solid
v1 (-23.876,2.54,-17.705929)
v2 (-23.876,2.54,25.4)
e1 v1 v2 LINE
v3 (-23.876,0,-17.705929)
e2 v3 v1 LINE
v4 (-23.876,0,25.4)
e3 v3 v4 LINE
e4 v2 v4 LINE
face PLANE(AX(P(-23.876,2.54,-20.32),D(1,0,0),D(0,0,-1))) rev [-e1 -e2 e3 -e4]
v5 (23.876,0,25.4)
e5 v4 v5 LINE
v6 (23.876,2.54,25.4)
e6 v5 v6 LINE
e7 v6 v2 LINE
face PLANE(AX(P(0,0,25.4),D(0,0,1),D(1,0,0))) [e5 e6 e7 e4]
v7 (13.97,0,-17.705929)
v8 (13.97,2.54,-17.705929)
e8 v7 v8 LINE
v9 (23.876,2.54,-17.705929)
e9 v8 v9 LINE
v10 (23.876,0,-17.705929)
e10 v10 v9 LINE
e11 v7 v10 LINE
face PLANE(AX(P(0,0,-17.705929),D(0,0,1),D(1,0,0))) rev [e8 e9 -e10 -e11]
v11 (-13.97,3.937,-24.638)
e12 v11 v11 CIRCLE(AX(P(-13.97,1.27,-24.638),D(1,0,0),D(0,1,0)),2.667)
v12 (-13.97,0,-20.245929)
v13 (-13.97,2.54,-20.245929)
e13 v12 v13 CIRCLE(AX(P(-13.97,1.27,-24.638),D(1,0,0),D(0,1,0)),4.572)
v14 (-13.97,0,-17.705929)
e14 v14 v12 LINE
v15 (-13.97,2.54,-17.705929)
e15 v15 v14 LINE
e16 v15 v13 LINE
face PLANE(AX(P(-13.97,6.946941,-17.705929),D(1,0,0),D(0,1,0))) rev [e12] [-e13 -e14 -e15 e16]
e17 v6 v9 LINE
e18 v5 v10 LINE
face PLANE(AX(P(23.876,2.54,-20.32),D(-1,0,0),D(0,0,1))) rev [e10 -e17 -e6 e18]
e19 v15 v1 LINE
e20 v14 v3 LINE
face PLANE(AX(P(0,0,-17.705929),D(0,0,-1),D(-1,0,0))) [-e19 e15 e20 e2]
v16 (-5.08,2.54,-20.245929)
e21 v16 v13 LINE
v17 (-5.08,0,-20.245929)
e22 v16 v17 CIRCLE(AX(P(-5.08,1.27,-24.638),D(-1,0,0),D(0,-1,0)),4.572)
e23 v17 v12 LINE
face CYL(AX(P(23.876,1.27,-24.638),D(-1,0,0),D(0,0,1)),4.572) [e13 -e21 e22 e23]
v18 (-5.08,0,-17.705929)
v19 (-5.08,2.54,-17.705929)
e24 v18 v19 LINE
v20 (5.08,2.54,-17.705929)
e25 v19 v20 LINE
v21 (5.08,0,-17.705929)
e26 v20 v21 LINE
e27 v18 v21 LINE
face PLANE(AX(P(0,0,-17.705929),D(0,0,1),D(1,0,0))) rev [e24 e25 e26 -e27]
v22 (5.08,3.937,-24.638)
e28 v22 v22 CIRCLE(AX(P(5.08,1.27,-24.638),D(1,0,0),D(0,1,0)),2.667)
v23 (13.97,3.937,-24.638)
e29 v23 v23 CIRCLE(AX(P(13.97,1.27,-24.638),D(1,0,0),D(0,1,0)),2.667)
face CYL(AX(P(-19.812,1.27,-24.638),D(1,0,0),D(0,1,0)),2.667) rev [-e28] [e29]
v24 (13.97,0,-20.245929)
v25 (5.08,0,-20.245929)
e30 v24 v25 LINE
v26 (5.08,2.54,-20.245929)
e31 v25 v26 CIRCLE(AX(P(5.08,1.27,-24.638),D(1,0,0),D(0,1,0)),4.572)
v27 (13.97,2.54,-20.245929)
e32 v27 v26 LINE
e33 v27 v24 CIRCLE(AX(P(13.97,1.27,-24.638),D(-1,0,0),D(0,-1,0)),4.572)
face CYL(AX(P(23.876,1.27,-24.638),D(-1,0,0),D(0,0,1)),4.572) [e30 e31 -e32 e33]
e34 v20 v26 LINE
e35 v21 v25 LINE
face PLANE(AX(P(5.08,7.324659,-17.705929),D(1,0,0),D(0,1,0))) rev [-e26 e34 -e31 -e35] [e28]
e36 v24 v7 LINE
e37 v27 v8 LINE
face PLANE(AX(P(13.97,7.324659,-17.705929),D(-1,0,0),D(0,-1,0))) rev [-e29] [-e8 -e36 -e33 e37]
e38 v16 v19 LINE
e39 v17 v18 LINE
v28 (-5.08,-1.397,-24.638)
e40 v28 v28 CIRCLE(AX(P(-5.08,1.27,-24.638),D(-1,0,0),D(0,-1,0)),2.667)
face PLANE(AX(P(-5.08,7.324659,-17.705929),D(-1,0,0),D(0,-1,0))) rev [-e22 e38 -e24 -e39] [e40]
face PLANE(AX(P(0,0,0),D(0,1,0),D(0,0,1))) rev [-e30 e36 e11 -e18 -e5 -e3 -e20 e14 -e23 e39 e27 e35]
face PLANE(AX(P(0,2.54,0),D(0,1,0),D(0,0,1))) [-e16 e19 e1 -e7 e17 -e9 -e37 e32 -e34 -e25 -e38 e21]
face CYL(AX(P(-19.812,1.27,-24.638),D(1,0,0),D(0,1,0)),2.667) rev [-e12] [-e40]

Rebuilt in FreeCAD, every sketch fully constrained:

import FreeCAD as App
import Part
import Sketcher

V = App.Vector
Q = App.Units.Quantity

doc = App.newDocument("Part")
body = doc.addObject("PartDesign::Body", "Body")

sketch1 = doc.addObject("Sketcher::SketchObject", "Sketch")
body.addObject(sketch1)
sketch1.AttachmentSupport = (doc.XZ_Plane, [""])
sketch1.MapMode = "FlatFace"
sketch1.addGeometry(Part.LineSegment(V(-23.876, -20.32, 0), V(-23.876, 20.32, 0)), False)
sketch1.addGeometry(Part.LineSegment(V(-23.876, 20.32, 0), V(23.876, 20.32, 0)), False)
sketch1.addGeometry(Part.LineSegment(V(23.876, 20.32, 0), V(23.876, -20.32, 0)), False)
sketch1.addGeometry(Part.LineSegment(V(23.876, -20.32, 0), V(-23.876, -20.32, 0)), False)
sketch1.addConstraint(Sketcher.Constraint("Coincident", 0, 2, 1, 1))
sketch1.addConstraint(Sketcher.Constraint("Coincident", 1, 2, 2, 1))
sketch1.addConstraint(Sketcher.Constraint("Coincident", 2, 2, 3, 1))
sketch1.addConstraint(Sketcher.Constraint("Coincident", 3, 2, 0, 1))
sketch1.addConstraint(Sketcher.Constraint("Vertical", 0))
sketch1.addConstraint(Sketcher.Constraint("Horizontal", 1))
sketch1.addConstraint(Sketcher.Constraint("Vertical", 2))
sketch1.addConstraint(Sketcher.Constraint("Horizontal", 3))
sketch1.addConstraint(Sketcher.Constraint("Symmetric", 0, 2, 2, 2, -1, 1))
sketch1.addConstraint(Sketcher.Constraint("DistanceY", 0, 1, 0, 2, Q("1.6 in")))
sketch1.addConstraint(Sketcher.Constraint("DistanceX", 1, 1, 1, 2, Q("1.88 in")))
pad1 = doc.addObject("PartDesign::Pad", "Pad")
body.addObject(pad1)
pad1.Profile = sketch1
pad1.Length = Q("0.1 in")
pad1.Reversed = True

sketch2 = doc.addObject("Sketcher::SketchObject", "Sketch001")
body.addObject(sketch2)
sketch2.AttachmentSupport = (doc.YZ_Plane, [""])
sketch2.MapMode = "FlatFace"
sketch2.addGeometry(Part.Circle(V(1.27, -24.638, 0), V(0, 0, 1), 4.572), False)
sketch2.addConstraint(Sketcher.Constraint("Diameter", 0, Q("0.36 in")))
sketch2.addConstraint(Sketcher.Constraint("DistanceX", -1, 1, 0, 3, Q("0.05 in")))
sketch2.addConstraint(Sketcher.Constraint("DistanceY", 0, 3, -1, 1, Q("0.97 in")))
pad2 = doc.addObject("PartDesign::Pad", "Pad001")
body.addObject(pad2)
pad2.Profile = sketch2
pad2.Length = Q("1.88 in")
pad2.Midplane = True

sketch3 = doc.addObject("Sketcher::SketchObject", "Sketch002")
body.addObject(sketch3)
sketch3.AttachmentSupport = (doc.XY_Plane, [""])
sketch3.MapMode = "FlatFace"
sketch3.AttachmentOffset = App.Placement(V(0, 0, -20.245929), App.Rotation())
sketch3.addGeometry(Part.LineSegment(V(5.08, 7.324659, 0), V(5.08, -5.949444, 0)), False)
sketch3.addGeometry(Part.LineSegment(V(5.08, -5.949444, 0), V(-5.08, -5.949444, 0)), False)
sketch3.addGeometry(Part.LineSegment(V(-5.08, -5.949444, 0), V(-5.08, 7.324659, 0)), False)
sketch3.addGeometry(Part.LineSegment(V(-5.08, 7.324659, 0), V(5.08, 7.324659, 0)), False)
sketch3.addGeometry(Part.LineSegment(V(-13.97, 6.946941, 0), V(-13.97, -5.949444, 0)), False)
sketch3.addGeometry(Part.LineSegment(V(-13.97, -5.949444, 0), V(-24.923833, -5.949444, 0)), False)
sketch3.addGeometry(Part.LineSegment(V(-24.923833, -5.949444, 0), V(-24.923833, 6.946941, 0)), False)
sketch3.addGeometry(Part.LineSegment(V(-24.923833, 6.946941, 0), V(-13.97, 6.946941, 0)), False)
sketch3.addGeometry(Part.LineSegment(V(25.301551, 7.324659, 0), V(25.301551, -5.949444, 0)), False)
sketch3.addGeometry(Part.LineSegment(V(25.301551, -5.949444, 0), V(13.97, -5.949444, 0)), False)
sketch3.addGeometry(Part.LineSegment(V(13.97, -5.949444, 0), V(13.97, 7.324659, 0)), False)
sketch3.addGeometry(Part.LineSegment(V(13.97, 7.324659, 0), V(25.301551, 7.324659, 0)), False)
sketch3.addConstraint(Sketcher.Constraint("Coincident", 0, 2, 1, 1))
sketch3.addConstraint(Sketcher.Constraint("Coincident", 1, 2, 2, 1))
sketch3.addConstraint(Sketcher.Constraint("Coincident", 2, 2, 3, 1))
sketch3.addConstraint(Sketcher.Constraint("Coincident", 3, 2, 0, 1))
sketch3.addConstraint(Sketcher.Constraint("Coincident", 4, 2, 5, 1))
sketch3.addConstraint(Sketcher.Constraint("Coincident", 5, 2, 6, 1))
sketch3.addConstraint(Sketcher.Constraint("Coincident", 6, 2, 7, 1))
sketch3.addConstraint(Sketcher.Constraint("Coincident", 7, 2, 4, 1))
sketch3.addConstraint(Sketcher.Constraint("Coincident", 8, 2, 9, 1))
sketch3.addConstraint(Sketcher.Constraint("Coincident", 9, 2, 10, 1))
sketch3.addConstraint(Sketcher.Constraint("Coincident", 10, 2, 11, 1))
sketch3.addConstraint(Sketcher.Constraint("Coincident", 11, 2, 8, 1))
sketch3.addConstraint(Sketcher.Constraint("Vertical", 0))
sketch3.addConstraint(Sketcher.Constraint("Horizontal", 1))
sketch3.addConstraint(Sketcher.Constraint("Vertical", 2))
sketch3.addConstraint(Sketcher.Constraint("Horizontal", 3))
sketch3.addConstraint(Sketcher.Constraint("Vertical", 4))
sketch3.addConstraint(Sketcher.Constraint("Horizontal", 5))
sketch3.addConstraint(Sketcher.Constraint("Vertical", 6))
sketch3.addConstraint(Sketcher.Constraint("Horizontal", 7))
sketch3.addConstraint(Sketcher.Constraint("Vertical", 8))
sketch3.addConstraint(Sketcher.Constraint("Horizontal", 9))
sketch3.addConstraint(Sketcher.Constraint("Vertical", 10))
sketch3.addConstraint(Sketcher.Constraint("Horizontal", 11))
sketch3.addConstraint(Sketcher.Constraint("Symmetric", 4, 2, 9, 2, -2))
sketch3.addConstraint(Sketcher.Constraint("Horizontal", 1, 2, 4, 2))
sketch3.addConstraint(Sketcher.Constraint("Horizontal", 3, 2, 10, 2))
sketch3.addConstraint(Sketcher.Constraint("DistanceX", 1, 2, 1, 1, Q("0.4 in")))
sketch3.addConstraint(Sketcher.Constraint("DistanceX", -1, 1, 0, 2, Q("0.2 in")))
sketch3.addConstraint(Sketcher.Constraint("DistanceX", 4, 2, -1, 1, Q("0.55 in")))
sketch3.addConstraint(Sketcher.Constraint("DistanceX", 9, 2, 9, 1, Q("11.331551 mm")))
sketch3.addConstraint(Sketcher.Constraint("DistanceX", 5, 2, 5, 1, Q("10.953833 mm")))
sketch3.addConstraint(Sketcher.Constraint("DistanceY", 0, 2, 0, 1, Q("13.274103 mm")))
sketch3.addConstraint(Sketcher.Constraint("DistanceY", 4, 2, 4, 1, Q("12.896385 mm")))
sketch3.addConstraint(Sketcher.Constraint("DistanceY", -1, 1, 2, 2, Q("7.324659 mm")))
pocket1 = doc.addObject("PartDesign::Pocket", "Pocket")
body.addObject(pocket1)
pocket1.Profile = sketch3
pocket1.Type = "TwoLengths"
pocket1.Length = Q("1.88 in")
pocket1.Length2 = Q("0.1 in")

sketch4 = doc.addObject("Sketcher::SketchObject", "Sketch003")
body.addObject(sketch4)
sketch4.AttachmentSupport = (doc.XY_Plane, [""])
sketch4.MapMode = "FlatFace"
sketch4.AttachmentOffset = App.Placement(V(0, 0, 0.8 * 25.4), App.Rotation())
sketch4.addGeometry(Part.LineSegment(V(-23.876, 2.54, 0), V(-23.876, 0, 0)), False)
sketch4.addGeometry(Part.LineSegment(V(-23.876, 0, 0), V(23.876, 0, 0)), False)
sketch4.addGeometry(Part.LineSegment(V(23.876, 0, 0), V(23.876, 2.54, 0)), False)
sketch4.addGeometry(Part.LineSegment(V(23.876, 2.54, 0), V(-23.876, 2.54, 0)), False)
sketch4.addConstraint(Sketcher.Constraint("Coincident", 0, 2, 1, 1))
sketch4.addConstraint(Sketcher.Constraint("Coincident", 1, 2, 2, 1))
sketch4.addConstraint(Sketcher.Constraint("Coincident", 2, 2, 3, 1))
sketch4.addConstraint(Sketcher.Constraint("Coincident", 3, 2, 0, 1))
sketch4.addConstraint(Sketcher.Constraint("Vertical", 0))
sketch4.addConstraint(Sketcher.Constraint("Horizontal", 1))
sketch4.addConstraint(Sketcher.Constraint("Vertical", 2))
sketch4.addConstraint(Sketcher.Constraint("Horizontal", 3))
sketch4.addConstraint(Sketcher.Constraint("Symmetric", 0, 2, 1, 2, -1, 1))
sketch4.addConstraint(Sketcher.Constraint("DistanceY", 0, 2, 0, 1, Q("0.1 in")))
sketch4.addConstraint(Sketcher.Constraint("DistanceX", 1, 1, 1, 2, Q("1.88 in")))
pad3 = doc.addObject("PartDesign::Pad", "Pad002")
body.addObject(pad3)
pad3.Profile = sketch4
pad3.Length = Q("0.2 in")

sketch5 = doc.addObject("Sketcher::SketchObject", "Sketch004")
body.addObject(sketch5)
sketch5.AttachmentSupport = (doc.YZ_Plane, [""])
sketch5.MapMode = "FlatFace"
sketch5.AttachmentOffset = App.Placement(V(0, 0, 0.55 * 25.4), App.Rotation())
sketch5.addGeometry(Part.Circle(V(1.27, -24.638, 0), V(0, 0, 1), 2.667), False)
sketch5.addConstraint(Sketcher.Constraint("Diameter", 0, Q("0.21 in")))
sketch5.addConstraint(Sketcher.Constraint("DistanceX", -1, 1, 0, 3, Q("0.05 in")))
sketch5.addConstraint(Sketcher.Constraint("DistanceY", 0, 3, -1, 1, Q("0.97 in")))
pocket2 = doc.addObject("PartDesign::Pocket", "Pocket001")
body.addObject(pocket2)
pocket2.Profile = sketch5
pocket2.Length = Q("1.33 in")

doc.recompute()
